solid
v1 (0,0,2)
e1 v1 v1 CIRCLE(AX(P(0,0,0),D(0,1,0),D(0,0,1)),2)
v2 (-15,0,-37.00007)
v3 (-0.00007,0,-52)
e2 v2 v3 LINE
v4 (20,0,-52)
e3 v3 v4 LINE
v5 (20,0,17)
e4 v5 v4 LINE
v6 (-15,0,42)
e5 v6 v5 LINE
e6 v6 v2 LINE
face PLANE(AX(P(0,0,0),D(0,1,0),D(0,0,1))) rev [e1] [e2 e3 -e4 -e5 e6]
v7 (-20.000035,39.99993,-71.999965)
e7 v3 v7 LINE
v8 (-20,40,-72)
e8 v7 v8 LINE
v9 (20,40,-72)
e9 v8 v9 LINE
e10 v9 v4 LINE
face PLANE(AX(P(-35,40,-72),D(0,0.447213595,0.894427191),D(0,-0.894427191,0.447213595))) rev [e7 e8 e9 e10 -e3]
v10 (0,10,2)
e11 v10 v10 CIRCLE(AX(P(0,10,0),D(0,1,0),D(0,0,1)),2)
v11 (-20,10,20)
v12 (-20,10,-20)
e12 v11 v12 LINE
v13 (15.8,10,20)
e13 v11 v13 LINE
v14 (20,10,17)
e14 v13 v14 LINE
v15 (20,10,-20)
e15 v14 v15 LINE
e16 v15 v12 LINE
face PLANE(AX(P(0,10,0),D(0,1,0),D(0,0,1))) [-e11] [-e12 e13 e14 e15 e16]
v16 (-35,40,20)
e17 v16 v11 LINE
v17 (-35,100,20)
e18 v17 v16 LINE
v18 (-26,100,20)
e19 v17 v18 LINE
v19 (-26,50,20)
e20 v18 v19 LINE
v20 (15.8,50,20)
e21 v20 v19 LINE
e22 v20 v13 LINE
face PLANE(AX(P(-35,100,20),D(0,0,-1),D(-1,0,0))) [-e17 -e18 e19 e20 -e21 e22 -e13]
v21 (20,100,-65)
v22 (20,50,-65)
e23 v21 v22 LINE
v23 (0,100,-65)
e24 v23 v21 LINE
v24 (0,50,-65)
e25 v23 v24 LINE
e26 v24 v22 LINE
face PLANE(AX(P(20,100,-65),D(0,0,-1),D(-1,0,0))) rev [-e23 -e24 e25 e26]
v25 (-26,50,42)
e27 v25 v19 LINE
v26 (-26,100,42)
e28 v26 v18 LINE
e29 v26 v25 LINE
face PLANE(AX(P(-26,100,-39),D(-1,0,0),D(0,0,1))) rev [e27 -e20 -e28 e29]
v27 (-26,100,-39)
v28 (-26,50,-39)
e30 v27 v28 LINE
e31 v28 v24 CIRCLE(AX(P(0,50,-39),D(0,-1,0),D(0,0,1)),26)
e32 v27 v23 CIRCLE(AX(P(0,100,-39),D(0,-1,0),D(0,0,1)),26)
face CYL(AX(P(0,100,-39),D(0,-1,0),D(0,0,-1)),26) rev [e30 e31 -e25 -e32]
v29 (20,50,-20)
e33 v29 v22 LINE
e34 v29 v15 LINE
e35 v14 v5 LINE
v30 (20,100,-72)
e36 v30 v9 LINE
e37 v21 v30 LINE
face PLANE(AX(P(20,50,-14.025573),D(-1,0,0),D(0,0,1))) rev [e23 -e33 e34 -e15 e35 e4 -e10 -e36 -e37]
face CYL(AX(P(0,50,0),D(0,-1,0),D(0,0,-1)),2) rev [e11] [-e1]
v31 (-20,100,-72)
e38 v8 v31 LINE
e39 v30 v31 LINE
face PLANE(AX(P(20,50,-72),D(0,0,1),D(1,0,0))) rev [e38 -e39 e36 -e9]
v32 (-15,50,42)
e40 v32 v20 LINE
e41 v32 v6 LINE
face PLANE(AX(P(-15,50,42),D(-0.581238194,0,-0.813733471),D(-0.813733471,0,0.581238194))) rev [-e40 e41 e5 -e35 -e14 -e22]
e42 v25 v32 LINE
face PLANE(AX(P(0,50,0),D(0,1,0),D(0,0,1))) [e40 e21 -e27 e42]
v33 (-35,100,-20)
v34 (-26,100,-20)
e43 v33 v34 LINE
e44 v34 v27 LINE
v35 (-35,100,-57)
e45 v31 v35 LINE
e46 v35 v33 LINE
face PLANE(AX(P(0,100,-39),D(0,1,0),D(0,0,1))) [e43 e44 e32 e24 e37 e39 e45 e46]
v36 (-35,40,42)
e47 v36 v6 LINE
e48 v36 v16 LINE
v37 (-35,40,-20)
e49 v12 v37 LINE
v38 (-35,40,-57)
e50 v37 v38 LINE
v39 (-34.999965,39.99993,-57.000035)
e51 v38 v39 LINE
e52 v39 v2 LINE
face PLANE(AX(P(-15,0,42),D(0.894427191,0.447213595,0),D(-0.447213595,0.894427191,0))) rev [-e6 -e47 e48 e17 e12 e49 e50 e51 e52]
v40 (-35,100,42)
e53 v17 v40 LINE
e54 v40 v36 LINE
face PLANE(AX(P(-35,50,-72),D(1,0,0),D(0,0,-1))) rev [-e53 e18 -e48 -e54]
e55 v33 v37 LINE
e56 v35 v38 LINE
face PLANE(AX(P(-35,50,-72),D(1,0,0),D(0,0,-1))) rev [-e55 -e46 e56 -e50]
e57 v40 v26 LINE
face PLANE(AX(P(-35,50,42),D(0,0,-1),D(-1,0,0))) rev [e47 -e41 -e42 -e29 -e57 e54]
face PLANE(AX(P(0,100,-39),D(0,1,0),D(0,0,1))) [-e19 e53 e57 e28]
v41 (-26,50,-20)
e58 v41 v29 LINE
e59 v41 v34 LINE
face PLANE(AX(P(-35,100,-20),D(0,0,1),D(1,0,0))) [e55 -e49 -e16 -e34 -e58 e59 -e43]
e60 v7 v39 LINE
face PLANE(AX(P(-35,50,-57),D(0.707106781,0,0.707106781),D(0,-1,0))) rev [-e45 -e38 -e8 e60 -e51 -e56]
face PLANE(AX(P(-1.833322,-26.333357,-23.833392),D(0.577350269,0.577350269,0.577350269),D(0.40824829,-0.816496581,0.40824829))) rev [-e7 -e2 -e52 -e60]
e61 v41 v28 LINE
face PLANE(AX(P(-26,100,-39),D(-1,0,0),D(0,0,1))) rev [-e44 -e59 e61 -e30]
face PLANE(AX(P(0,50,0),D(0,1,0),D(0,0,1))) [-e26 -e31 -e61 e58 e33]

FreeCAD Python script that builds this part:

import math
import FreeCAD as App
import Part
import Sketcher

V = App.Vector


def edges_at(feature, points):
    """Names of the edges that pass closest to the given points."""
    edges = feature.Shape.Edges
    near = lambda p: min(range(len(edges)), key=lambda i: edges[i].distToShape(Part.Vertex(*p))[0])
    return sorted({f"Edge{near(p) + 1}" for p in points})

doc = App.newDocument("Part")
params = doc.addObject("Spreadsheet::Sheet", "Params")
for row, (alias, value) in enumerate([
    ("sketch1_diameter", "4 mm"),
    ("sketch1_width", "20 mm"),
    ("sketch1_width2", "55 mm"),
    ("sketch1_height", "114 mm"),
    ("sketch1_height2", "89 mm"),
    ("pad1_length", "50 mm"),
    ("chamfer_size", "15 mm"),
    ("sketch2_radius", "26 mm"),
    ("sketch2_width", "20 mm"),
    ("sketch2_width2", "40 mm"),
    ("sketch2_width3", "9 mm"),
    ("sketch2_height", "81 mm"),
    ("pad2_length", "50 mm"),
    ("sketch3_width", "55 mm"),
    ("sketch3_height", "40 mm"),
    ("pocket1_length", "50 mm"),
    ("pocket1_length2", "40 mm"),
    ("sketch4_width", "20 mm"),
    ("sketch4_height", "40 mm"),
    ("sketch5_width", "40 mm"),
    ("sketch5_height", "20 mm"),
    ("chamfer2_size", "13.693 mm"),
], start=1):
    params.set(f"A{row}", alias)
    params.set(f"B{row}", "=" + value)
    params.setAlias(f"B{row}", alias)

body = doc.addObject("PartDesign::Body", "Body")

# Sketch on XZ plane
sketch1 = body.newObject("Sketcher::SketchObject", "Sketch")
sketch1.AttachmentSupport = (doc.getObject("XZ_Plane"), [""])
sketch1.MapMode = "FlatFace"
sketch1.addGeometry([
    Part.LineSegment(V(-35, -72, 0), V(-35, 42, 0)),  # 0
    Part.LineSegment(V(-35, 42, 0), V(-15, 42, 0)),  # 1
    Part.LineSegment(V(-15, 42, 0), V(20, 17, 0)),  # 2
    Part.LineSegment(V(20, 17, 0), V(20, -72, 0)),  # 3
    Part.LineSegment(V(20, -72, 0), V(-35, -72, 0)),  # 4
    Part.Circle(V(0, 0, 0), V(0, 0, 1), 2),  # 5
], False)
sketch1.addConstraint([
    Sketcher.Constraint("Coincident", 0, 2, 1, 1),
    Sketcher.Constraint("Coincident", 1, 2, 2, 1),
    Sketcher.Constraint("Coincident", 2, 2, 3, 1),
    Sketcher.Constraint("Coincident", 3, 2, 4, 1),
    Sketcher.Constraint("Coincident", 4, 2, 0, 1),
    Sketcher.Constraint("Vertical", 0),
    Sketcher.Constraint("Horizontal", 1),
    Sketcher.Constraint("Vertical", 3),
    Sketcher.Constraint("Horizontal", 4),
    Sketcher.Constraint("Coincident", 5, 3, -1, 1),
    Sketcher.Constraint("Diameter", 5, 4.0),
    Sketcher.Constraint("DistanceX", 1, 1, 1, 2, 20.0),
    Sketcher.Constraint("DistanceX", 4, 2, 4, 1, 55.0),
    Sketcher.Constraint("DistanceY", 0, 1, 0, 2, 114.0),
    Sketcher.Constraint("DistanceY", 3, 2, 3, 1, 89.0),
    Sketcher.Constraint("DistanceX", 0, 2, -1, 1, 35.0),
    Sketcher.Constraint("DistanceY", -1, 1, 0, 2, 42.0),
])
sketch1.setExpression("Constraints[10]", "Params.sketch1_diameter")
sketch1.setExpression("Constraints[11]", "Params.sketch1_width")
sketch1.setExpression("Constraints[12]", "Params.sketch1_width2")
sketch1.setExpression("Constraints[13]", "Params.sketch1_height")
sketch1.setExpression("Constraints[14]", "Params.sketch1_height2")
pad1 = body.newObject("PartDesign::Pad", "Pad")
pad1.Profile = sketch1
pad1.setExpression("Length", "Params.pad1_length")
pad1.Reversed = True
doc.recompute()

chamfer = body.newObject("PartDesign::Chamfer", "Chamfer")
chamfer.Base = (pad1, edges_at(pad1, [(-35, 25, -72)]))
chamfer.setExpression("Size", "Params.chamfer_size")

# Sketch on XZ plane
sketch2 = body.newObject("Sketcher::SketchObject", "Sketch001")
sketch2.AttachmentSupport = (doc.getObject("XZ_Plane"), [""])
sketch2.MapMode = "FlatFace"
sketch2.AttachmentOffset = App.Placement(V(0, 0, -50), App.Rotation())
sketch2.addGeometry([
    Part.LineSegment(V(-26, 42, 0), V(-26, -39, 0)),  # 0
    Part.ArcOfCircle(Part.Circle(V(0, -39, 0), V(0, 0, 1), 26), math.radians(180), math.radians(270)),  # 1
    Part.LineSegment(V(0, -65, 0), V(20, -65, 0)),  # 2
    Part.LineSegment(V(20, -65, 0), V(20, -72, 0)),  # 3
    Part.LineSegment(V(20, -72, 0), V(-20, -72, 0)),  # 4
    Part.LineSegment(V(-20, -72, 0), V(-35, -57, 0)),  # 5
    Part.LineSegment(V(-35, -57, 0), V(-35, 42, 0)),  # 6
    Part.LineSegment(V(-35, 42, 0), V(-26, 42, 0)),  # 7
], False)
sketch2.addConstraint([
    Sketcher.Constraint("Tangent", 0, 2, 1, 1),
    Sketcher.Constraint("Tangent", 1, 2, 2, 1),
    Sketcher.Constraint("Coincident", 2, 2, 3, 1),
    Sketcher.Constraint("Coincident", 3, 2, 4, 1),
    Sketcher.Constraint("Coincident", 4, 2, 5, 1),
    Sketcher.Constraint("Coincident", 5, 2, 6, 1),
    Sketcher.Constraint("Coincident", 6, 2, 7, 1),
    Sketcher.Constraint("Coincident", 7, 2, 0, 1),
    Sketcher.Constraint("Vertical", 0),
    Sketcher.Constraint("Horizontal", 2),
    Sketcher.Constraint("Vertical", 3),
    Sketcher.Constraint("Horizontal", 4),
    Sketcher.Constraint("Vertical", 6),
    Sketcher.Constraint("Horizontal", 7),
    Sketcher.Constraint("PointOnObject", 1, 3, -2),
    Sketcher.Constraint("Radius", 1, 26.0),
    Sketcher.Constraint("DistanceX", 2, 1, 2, 2, 20.0),
    Sketcher.Constraint("DistanceX", 4, 2, 4, 1, 40.0),
    Sketcher.Constraint("DistanceX", 7, 1, 7, 2, 9.0),
    Sketcher.Constraint("DistanceY", 0, 2, 0, 1, 81.0),
    Sketcher.Constraint("DistanceY", 3, 2, 3, 1, 7.0),
    Sketcher.Constraint("DistanceY", 6, 1, 6, 2, 99.0),
    Sketcher.Constraint("DistanceY", 1, 3, -1, 1, 39.0),
])
sketch2.setExpression("Constraints[15]", "Params.sketch2_radius")
sketch2.setExpression("Constraints[16]", "Params.sketch2_width")
sketch2.setExpression("Constraints[17]", "Params.sketch2_width2")
sketch2.setExpression("Constraints[18]", "Params.sketch2_width3")
sketch2.setExpression("Constraints[19]", "Params.sketch2_height")
pad2 = body.newObject("PartDesign::Pad", "Pad001")
pad2.Profile = sketch2
pad2.setExpression("Length", "Params.pad2_length")
pad2.Reversed = True

# Sketch on XZ plane
sketch3 = body.newObject("Sketcher::SketchObject", "Sketch002")
sketch3.AttachmentSupport = (doc.getObject("XZ_Plane"), [""])
sketch3.MapMode = "FlatFace"
sketch3.AttachmentOffset = App.Placement(V(0, 0, -50), App.Rotation())
sketch3.addGeometry([
    Part.LineSegment(V(-35, -20, 0), V(-35, 20, 0)),
    Part.LineSegment(V(-35, 20, 0), V(20, 20, 0)),
    Part.LineSegment(V(20, 20, 0), V(20, -20, 0)),
    Part.LineSegment(V(20, -20, 0), V(-35, -20, 0)),
], False)
sketch3.addConstraint([
    Sketcher.Constraint("Coincident", 0, 2, 1, 1),
    Sketcher.Constraint("Coincident", 1, 2, 2, 1),
    Sketcher.Constraint("Coincident", 2, 2, 3, 1),
    Sketcher.Constraint("Coincident", 3, 2, 0, 1),
    Sketcher.Constraint("Vertical", 0),
    Sketcher.Constraint("Horizontal", 1),
    Sketcher.Constraint("Vertical", 2),
    Sketcher.Constraint("Horizontal", 3),
    Sketcher.Constraint("DistanceX", 1, 1, 1, 2, 55.0),
    Sketcher.Constraint("DistanceY", 0, 1, 0, 2, 40.0),
    Sketcher.Constraint("DistanceX", 0, 2, -1, 1, 35.0),
    Sketcher.Constraint("DistanceY", -1, 1, 0, 2, 20.0),
])
sketch3.setExpression("Constraints[8]", "Params.sketch3_width")
sketch3.setExpression("Constraints[9]", "Params.sketch3_height")
pocket1 = body.newObject("PartDesign::Pocket", "Pocket")
pocket1.Profile = sketch3
pocket1.Type = "TwoLengths"
pocket1.setExpression("Length", "Params.pocket1_length")
pocket1.setExpression("Length2", "Params.pocket1_length2")

# Sketch on XY plane
sketch4 = body.newObject("Sketcher::SketchObject", "Sketch003")
sketch4.AttachmentSupport = (doc.getObject("XY_Plane"), [""])
sketch4.MapMode = "FlatFace"
sketch4.AttachmentOffset = App.Placement(V(0, 0, -72), App.Rotation())
sketch4.addGeometry([
    Part.LineSegment(V(-35, 40, 0), V(-15, 0, 0)),
    Part.LineSegment(V(-15, 0, 0), V(-35, 0, 0)),
    Part.LineSegment(V(-35, 0, 0), V(-35, 40, 0)),
], False)
sketch4.addConstraint([
    Sketcher.Constraint("Coincident", 0, 2, 1, 1),
    Sketcher.Constraint("Coincident", 1, 2, 2, 1),
    Sketcher.Constraint("Coincident", 2, 2, 0, 1),
    Sketcher.Constraint("Horizontal", 1),
    Sketcher.Constraint("Vertical", 2),
    Sketcher.Constraint("PointOnObject", 0, 2, -1),
    Sketcher.Constraint("DistanceX", 1, 2, 1, 1, 20.0),
    Sketcher.Constraint("DistanceY", 2, 1, 2, 2, 40.0),
    Sketcher.Constraint("DistanceX", 0, 2, -1, 1, 15.0),
])
sketch4.setExpression("Constraints[6]", "Params.sketch4_width")
sketch4.setExpression("Constraints[7]", "Params.sketch4_height")
pocket2 = body.newObject("PartDesign::Pocket", "Pocket001")
pocket2.Profile = sketch4
pocket2.Type = "ThroughAll"
pocket2.Reversed = True

# Sketch on YZ plane
sketch5 = body.newObject("Sketcher::SketchObject", "Sketch004")
sketch5.AttachmentSupport = (doc.getObject("YZ_Plane"), [""])
sketch5.MapMode = "FlatFace"
sketch5.AttachmentOffset = App.Placement(V(0, 0, 20), App.Rotation())
sketch5.addGeometry([
    Part.LineSegment(V(0, -52, 0), V(0, -72, 0)),
    Part.LineSegment(V(0, -72, 0), V(40, -72, 0)),
    Part.LineSegment(V(40, -72, 0), V(0, -52, 0)),
], False)
sketch5.addConstraint([
    Sketcher.Constraint("Coincident", 0, 2, 1, 1),
    Sketcher.Constraint("Coincident", 1, 2, 2, 1),
    Sketcher.Constraint("Coincident", 2, 2, 0, 1),
    Sketcher.Constraint("Vertical", 0),
    Sketcher.Constraint("Horizontal", 1),
    Sketcher.Constraint("PointOnObject", 0, 2, -2),
    Sketcher.Constraint("DistanceX", 1, 1, 1, 2, 40.0),
    Sketcher.Constraint("DistanceY", 0, 2, 0, 1, 20.0),
    Sketcher.Constraint("DistanceY", 0, 2, -1, 1, 72.0),
])
sketch5.setExpression("Constraints[6]", "Params.sketch5_width")
sketch5.setExpression("Constraints[7]", "Params.sketch5_height")
pocket3 = body.newObject("PartDesign::Pocket", "Pocket002")
pocket3.Profile = sketch5
pocket3.Type = "ThroughAll"
doc.recompute()

chamfer2 = body.newObject("PartDesign::Chamfer", "Chamfer001")
chamfer2.Base = (pocket3, edges_at(pocket3, [(-21.25, 12.5, -58.25)]))
chamfer2.setExpression("Size", "Params.chamfer2_size")

doc.recompute()
